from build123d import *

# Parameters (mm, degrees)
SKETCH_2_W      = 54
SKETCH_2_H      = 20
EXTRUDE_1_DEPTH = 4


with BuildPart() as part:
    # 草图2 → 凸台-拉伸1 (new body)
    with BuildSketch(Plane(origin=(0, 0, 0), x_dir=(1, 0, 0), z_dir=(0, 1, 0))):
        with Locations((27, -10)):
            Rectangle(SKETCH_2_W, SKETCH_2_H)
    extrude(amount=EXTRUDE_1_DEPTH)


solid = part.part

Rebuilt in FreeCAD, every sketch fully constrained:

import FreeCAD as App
import Part
import Sketcher
Q = App.Units.Quantity


def add_polygon(sketch, points):
    """Adds a closed chain of lines whose ends are joined by coincident constraints."""
    first, n = sketch.GeometryCount, len(points)
    for a, b in zip(points, points[1:] + points[:1]):
        sketch.addGeometry(Part.LineSegment(App.Vector(*a, 0), App.Vector(*b, 0)), False)
    for i in range(n):
        sketch.addConstraint(Sketcher.Constraint("Coincident", first + i, 2, first + (i + 1) % n, 1))

doc = App.newDocument("Part")
body = doc.addObject("PartDesign::Body", "Body")

# Sketch on XZ plane
sketch1 = body.newObject("Sketcher::SketchObject", "Sketch")
sketch1.AttachmentSupport = (doc.getObject("XZ_Plane"), [""])
sketch1.MapMode = "FlatFace"
add_polygon(sketch1, [(0, 0), (0, 20), (54, 20), (54, 0)])  # lines 0-3
sketch1.addConstraint([
    Sketcher.Constraint("Vertical", 0),
    Sketcher.Constraint("Horizontal", 1),
    Sketcher.Constraint("Vertical", 2),
    Sketcher.Constraint("Horizontal", 3),
    Sketcher.Constraint("Coincident", 3, 2, -1, 1),
    Sketcher.Constraint("DistanceX", 1, 1, 1, 2, Q("54 mm")),
    Sketcher.Constraint("DistanceY", 0, 1, 0, 2, Q("20 mm")),
])
pad1 = body.newObject("PartDesign::Pad", "Pad")
pad1.Profile = sketch1
pad1.Length = 4
pad1.Reversed = True

doc.recompute()
